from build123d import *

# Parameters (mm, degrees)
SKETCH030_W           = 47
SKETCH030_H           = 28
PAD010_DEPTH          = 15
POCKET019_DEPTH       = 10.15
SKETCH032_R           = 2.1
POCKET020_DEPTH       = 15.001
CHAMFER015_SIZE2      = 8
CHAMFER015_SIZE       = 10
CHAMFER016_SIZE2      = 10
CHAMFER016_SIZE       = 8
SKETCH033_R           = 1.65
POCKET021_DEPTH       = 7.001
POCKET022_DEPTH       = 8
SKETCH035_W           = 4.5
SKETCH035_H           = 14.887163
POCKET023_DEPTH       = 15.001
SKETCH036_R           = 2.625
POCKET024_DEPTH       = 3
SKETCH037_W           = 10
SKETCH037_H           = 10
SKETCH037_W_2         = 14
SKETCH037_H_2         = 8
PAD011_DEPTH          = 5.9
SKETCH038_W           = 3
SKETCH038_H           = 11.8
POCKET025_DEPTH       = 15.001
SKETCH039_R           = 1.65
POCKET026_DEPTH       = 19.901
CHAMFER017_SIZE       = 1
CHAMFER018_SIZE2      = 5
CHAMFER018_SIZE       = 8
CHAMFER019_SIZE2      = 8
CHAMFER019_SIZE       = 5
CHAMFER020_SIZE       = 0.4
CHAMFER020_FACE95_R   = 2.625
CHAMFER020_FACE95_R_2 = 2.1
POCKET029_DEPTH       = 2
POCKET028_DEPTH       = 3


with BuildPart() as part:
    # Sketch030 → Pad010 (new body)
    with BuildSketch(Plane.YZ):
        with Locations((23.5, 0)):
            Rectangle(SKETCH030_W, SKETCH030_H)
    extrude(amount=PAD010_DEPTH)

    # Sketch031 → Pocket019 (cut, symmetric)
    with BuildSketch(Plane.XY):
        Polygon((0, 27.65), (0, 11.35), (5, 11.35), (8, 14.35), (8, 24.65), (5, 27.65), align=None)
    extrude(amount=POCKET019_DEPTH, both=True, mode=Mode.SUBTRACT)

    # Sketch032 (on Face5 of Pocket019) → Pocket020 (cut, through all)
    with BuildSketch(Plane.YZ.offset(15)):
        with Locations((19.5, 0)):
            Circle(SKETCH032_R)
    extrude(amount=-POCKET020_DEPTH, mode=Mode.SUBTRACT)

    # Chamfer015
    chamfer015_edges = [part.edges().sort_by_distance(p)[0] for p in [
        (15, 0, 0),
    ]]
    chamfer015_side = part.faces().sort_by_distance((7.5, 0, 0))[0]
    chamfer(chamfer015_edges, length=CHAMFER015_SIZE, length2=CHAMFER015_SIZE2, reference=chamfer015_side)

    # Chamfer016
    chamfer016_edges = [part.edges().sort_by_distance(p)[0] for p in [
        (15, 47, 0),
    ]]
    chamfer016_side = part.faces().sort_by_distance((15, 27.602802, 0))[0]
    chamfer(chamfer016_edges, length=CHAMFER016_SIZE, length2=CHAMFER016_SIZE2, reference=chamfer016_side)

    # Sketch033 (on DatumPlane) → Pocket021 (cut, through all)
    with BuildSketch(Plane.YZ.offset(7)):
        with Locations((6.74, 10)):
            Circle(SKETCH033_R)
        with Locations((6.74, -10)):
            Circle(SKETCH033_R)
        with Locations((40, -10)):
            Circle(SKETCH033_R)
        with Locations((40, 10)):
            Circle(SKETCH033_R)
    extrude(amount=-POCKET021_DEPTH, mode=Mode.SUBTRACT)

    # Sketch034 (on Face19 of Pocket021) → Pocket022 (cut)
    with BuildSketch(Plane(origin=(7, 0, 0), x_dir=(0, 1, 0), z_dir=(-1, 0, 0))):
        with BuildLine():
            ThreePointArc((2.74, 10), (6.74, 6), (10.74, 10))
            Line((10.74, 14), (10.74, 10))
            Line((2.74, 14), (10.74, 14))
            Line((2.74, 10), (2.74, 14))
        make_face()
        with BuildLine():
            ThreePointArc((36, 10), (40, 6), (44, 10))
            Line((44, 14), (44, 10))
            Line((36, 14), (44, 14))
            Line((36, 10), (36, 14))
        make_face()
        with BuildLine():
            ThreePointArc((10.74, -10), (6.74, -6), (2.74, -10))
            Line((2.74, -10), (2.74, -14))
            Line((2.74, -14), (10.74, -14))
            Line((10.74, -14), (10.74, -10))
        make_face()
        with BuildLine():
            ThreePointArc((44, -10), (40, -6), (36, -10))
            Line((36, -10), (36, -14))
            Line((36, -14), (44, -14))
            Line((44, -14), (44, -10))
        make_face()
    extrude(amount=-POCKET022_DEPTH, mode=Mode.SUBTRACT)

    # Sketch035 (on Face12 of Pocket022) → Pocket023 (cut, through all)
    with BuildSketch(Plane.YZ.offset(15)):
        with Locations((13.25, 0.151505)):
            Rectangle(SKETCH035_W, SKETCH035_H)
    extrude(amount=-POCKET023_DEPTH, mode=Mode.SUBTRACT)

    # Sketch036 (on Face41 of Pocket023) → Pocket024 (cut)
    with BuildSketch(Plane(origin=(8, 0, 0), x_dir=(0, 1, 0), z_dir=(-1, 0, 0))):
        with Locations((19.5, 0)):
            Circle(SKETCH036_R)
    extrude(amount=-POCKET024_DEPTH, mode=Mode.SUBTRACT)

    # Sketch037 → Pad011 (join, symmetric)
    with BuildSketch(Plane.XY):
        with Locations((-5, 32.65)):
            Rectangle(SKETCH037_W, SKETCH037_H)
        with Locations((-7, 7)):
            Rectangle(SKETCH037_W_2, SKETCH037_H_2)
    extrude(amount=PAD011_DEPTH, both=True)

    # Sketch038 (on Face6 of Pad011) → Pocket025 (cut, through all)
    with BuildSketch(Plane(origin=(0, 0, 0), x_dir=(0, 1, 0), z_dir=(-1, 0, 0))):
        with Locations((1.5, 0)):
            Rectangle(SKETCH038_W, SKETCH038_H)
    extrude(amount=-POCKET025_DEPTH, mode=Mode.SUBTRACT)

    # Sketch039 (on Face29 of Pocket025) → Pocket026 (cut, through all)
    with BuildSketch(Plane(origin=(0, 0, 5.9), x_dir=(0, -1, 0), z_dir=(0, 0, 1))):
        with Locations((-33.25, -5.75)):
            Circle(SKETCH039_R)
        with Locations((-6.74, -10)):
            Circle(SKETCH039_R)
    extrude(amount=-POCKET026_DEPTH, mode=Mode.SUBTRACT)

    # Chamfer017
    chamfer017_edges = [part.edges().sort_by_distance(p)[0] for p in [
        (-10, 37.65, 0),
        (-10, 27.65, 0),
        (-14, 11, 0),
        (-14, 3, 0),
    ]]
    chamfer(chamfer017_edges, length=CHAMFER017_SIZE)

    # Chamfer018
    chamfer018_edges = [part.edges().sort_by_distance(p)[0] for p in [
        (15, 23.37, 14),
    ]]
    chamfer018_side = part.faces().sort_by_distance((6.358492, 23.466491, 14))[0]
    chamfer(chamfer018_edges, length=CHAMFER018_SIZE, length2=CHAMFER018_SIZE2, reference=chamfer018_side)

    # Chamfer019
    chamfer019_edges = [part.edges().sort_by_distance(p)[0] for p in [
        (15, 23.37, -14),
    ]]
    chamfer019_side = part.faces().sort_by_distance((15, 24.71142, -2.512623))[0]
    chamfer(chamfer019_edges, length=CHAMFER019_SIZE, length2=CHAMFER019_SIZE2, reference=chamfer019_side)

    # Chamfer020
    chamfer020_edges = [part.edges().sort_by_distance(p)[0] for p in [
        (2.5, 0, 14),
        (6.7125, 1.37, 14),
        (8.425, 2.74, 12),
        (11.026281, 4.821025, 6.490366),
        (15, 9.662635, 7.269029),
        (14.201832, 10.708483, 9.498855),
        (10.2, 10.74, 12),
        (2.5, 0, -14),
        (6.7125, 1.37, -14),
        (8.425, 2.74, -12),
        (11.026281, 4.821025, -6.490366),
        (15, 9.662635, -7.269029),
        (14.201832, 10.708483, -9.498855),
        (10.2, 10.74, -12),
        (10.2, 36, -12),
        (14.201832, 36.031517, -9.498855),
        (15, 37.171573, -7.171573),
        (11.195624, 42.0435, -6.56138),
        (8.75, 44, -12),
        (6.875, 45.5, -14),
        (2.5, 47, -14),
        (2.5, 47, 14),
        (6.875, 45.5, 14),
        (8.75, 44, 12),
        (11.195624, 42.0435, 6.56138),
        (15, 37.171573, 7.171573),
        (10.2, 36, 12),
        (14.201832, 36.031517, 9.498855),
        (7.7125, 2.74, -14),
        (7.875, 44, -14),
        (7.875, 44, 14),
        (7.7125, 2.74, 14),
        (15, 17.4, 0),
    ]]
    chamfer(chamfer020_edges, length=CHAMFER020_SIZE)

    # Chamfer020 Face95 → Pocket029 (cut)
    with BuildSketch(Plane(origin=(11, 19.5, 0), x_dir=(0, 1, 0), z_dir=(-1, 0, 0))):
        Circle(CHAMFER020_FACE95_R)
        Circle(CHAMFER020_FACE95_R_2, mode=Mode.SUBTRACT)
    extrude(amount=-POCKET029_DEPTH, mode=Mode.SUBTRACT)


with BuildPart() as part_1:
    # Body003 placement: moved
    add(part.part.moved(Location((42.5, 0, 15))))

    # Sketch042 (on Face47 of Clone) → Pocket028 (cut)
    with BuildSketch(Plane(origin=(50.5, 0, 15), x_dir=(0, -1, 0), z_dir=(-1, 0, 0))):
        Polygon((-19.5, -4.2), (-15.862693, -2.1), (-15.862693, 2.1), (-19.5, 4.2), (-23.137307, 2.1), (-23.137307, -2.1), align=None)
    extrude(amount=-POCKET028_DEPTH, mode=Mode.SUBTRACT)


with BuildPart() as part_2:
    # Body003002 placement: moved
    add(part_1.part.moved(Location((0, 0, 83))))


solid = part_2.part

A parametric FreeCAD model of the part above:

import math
import FreeCAD as App
import Part
import Sketcher

V = App.Vector
Q = App.Units.Quantity


def edges_at(feature, points):
    """Names of the edges that pass closest to the given points."""
    edges = feature.Shape.Edges
    near = lambda p: min(range(len(edges)), key=lambda i: edges[i].distToShape(Part.Vertex(*p))[0])
    return sorted({f"Edge{near(p) + 1}" for p in points})


def add_polygon(sketch, points):
    """Adds a closed chain of lines whose ends are joined by coincident constraints."""
    first, n = sketch.GeometryCount, len(points)
    for a, b in zip(points, points[1:] + points[:1]):
        sketch.addGeometry(Part.LineSegment(App.Vector(*a, 0), App.Vector(*b, 0)), False)
    for i in range(n):
        sketch.addConstraint(Sketcher.Constraint("Coincident", first + i, 2, first + (i + 1) % n, 1))

doc = App.newDocument("Part")
body = doc.addObject("PartDesign::Body", "Body")

# Sketch on YZ plane
sketch1 = doc.addObject("Sketcher::SketchObject", "Sketch")
body.addObject(sketch1)
sketch1.AttachmentSupport = (doc.YZ_Plane, [""])
sketch1.MapMode = "FlatFace"
add_polygon(sketch1, [(0, 14), (0, -14), (47, -14), (47, 14)])  # lines 0-3
sketch1.addConstraint([
    Sketcher.Constraint("Vertical", 0),
    Sketcher.Constraint("Horizontal", 1),
    Sketcher.Constraint("Vertical", 2),
    Sketcher.Constraint("Horizontal", 3),
    Sketcher.Constraint("Symmetric", 0, 2, 3, 2, -1, 1),
    Sketcher.Constraint("DistanceX", 1, 1, 1, 2, 47.0),
    Sketcher.Constraint("DistanceY", 0, 2, 0, 1, 28.0),
])
pad1 = doc.addObject("PartDesign::Pad", "Pad")
body.addObject(pad1)
pad1.Profile = sketch1
pad1.Length = 15

# Sketch on XY plane
sketch2 = doc.addObject("Sketcher::SketchObject", "Sketch001")
body.addObject(sketch2)
sketch2.AttachmentSupport = (doc.XY_Plane, [""])
sketch2.MapMode = "FlatFace"
add_polygon(sketch2, [(0, 27.65), (0, 11.35), (5, 11.35), (8, 14.35), (8, 24.65), (5, 27.65)])  # lines 0-5
sketch2.addConstraint([
    Sketcher.Constraint("Vertical", 0),
    Sketcher.Constraint("Horizontal", 1),
    Sketcher.Constraint("Vertical", 3),
    Sketcher.Constraint("Horizontal", 5),
    Sketcher.Constraint("PointOnObject", 0, 2, -2),
    Sketcher.Constraint("Perpendicular", 2, 4),
    Sketcher.Constraint("Vertical", 1, 2, 4, 2),
    Sketcher.Constraint("Equal", 2, 4),
    Sketcher.Constraint("DistanceX", 1, 1, 1, 2, 5.0),
    Sketcher.Constraint("DistanceY", 0, 2, 0, 1, 16.3),
    Sketcher.Constraint("DistanceY", 3, 1, 3, 2, 10.3),
    Sketcher.Constraint("DistanceY", -1, 1, 0, 2, 11.35),
])
pocket1 = doc.addObject("PartDesign::Pocket", "Pocket")
body.addObject(pocket1)
pocket1.Profile = sketch2
pocket1.Length = 20.3
pocket1.Midplane = True

# Sketch on YZ plane
sketch3 = doc.addObject("Sketcher::SketchObject", "Sketch002")
body.addObject(sketch3)
sketch3.AttachmentSupport = (doc.YZ_Plane, [""])
sketch3.MapMode = "FlatFace"
sketch3.AttachmentOffset = App.Placement(V(0, 0, 15), App.Rotation())
sketch3.addGeometry(Part.Circle(V(19.5, 0, 0), V(0, 0, 1), 2.1), False)
sketch3.addConstraint([
    Sketcher.Constraint("PointOnObject", 0, 3, -1),
    Sketcher.Constraint("Diameter", 0, 4.2),
    Sketcher.Constraint("DistanceX", -1, 1, 0, 3, 19.5),
])
pocket2 = doc.addObject("PartDesign::Pocket", "Pocket001")
body.addObject(pocket2)
pocket2.Profile = sketch3
pocket2.Type = "ThroughAll"
doc.recompute()

chamfer = doc.addObject("PartDesign::Chamfer", "Chamfer")
body.addObject(chamfer)
chamfer.Base = (pocket2, edges_at(pocket2, [(15, 0, 0)]))
chamfer.ChamferType = "Two distances"
chamfer.Size = 10
chamfer.Size2 = 8
doc.recompute()

chamfer2 = doc.addObject("PartDesign::Chamfer", "Chamfer001")
body.addObject(chamfer2)
chamfer2.Base = (chamfer, edges_at(chamfer, [(15, 47, 0)]))
chamfer2.ChamferType = "Two distances"
chamfer2.Size = 8
chamfer2.Size2 = 10

# Sketch on YZ plane
sketch4 = doc.addObject("Sketcher::SketchObject", "Sketch003")
body.addObject(sketch4)
sketch4.AttachmentSupport = (doc.YZ_Plane, [""])
sketch4.MapMode = "FlatFace"
sketch4.AttachmentOffset = App.Placement(V(0, 0, 7), App.Rotation())
sketch4.addGeometry([
    Part.Circle(V(6.74, 10, 0), V(0, 0, 1), 1.65),
    Part.Circle(V(6.74, -10, 0), V(0, 0, 1), 1.65),
    Part.Circle(V(40, -10, 0), V(0, 0, 1), 1.65),
    Part.Circle(V(40, 10, 0), V(0, 0, 1), 1.65),
], False)
sketch4.addConstraint([
    Sketcher.Constraint("Equal", 0, 1),
    Sketcher.Constraint("Equal", 1, 2),
    Sketcher.Constraint("Equal", 2, 3),
    Sketcher.Constraint("Symmetric", 0, 3, 1, 3, -1),
    Sketcher.Constraint("Symmetric", 2, 3, 3, 3, -1),
    Sketcher.Constraint("Horizontal", 1, 3, 2, 3),
    Sketcher.Constraint("Diameter", 0, 3.3),
    Sketcher.Constraint("DistanceY", -1, 1, 0, 3, 10.0),
    Sketcher.Constraint("DistanceX", -1, 1, 2, 3, 40.0),
    Sketcher.Constraint("DistanceX", -1, 1, 0, 3, 6.74),
])
pocket3 = doc.addObject("PartDesign::Pocket", "Pocket002")
body.addObject(pocket3)
pocket3.Profile = sketch4
pocket3.Type = "ThroughAll"

# Sketch on YZ plane
sketch5 = doc.addObject("Sketcher::SketchObject", "Sketch004")
body.addObject(sketch5)
sketch5.AttachmentSupport = (doc.YZ_Plane, [""])
sketch5.MapMode = "FlatFace"
sketch5.AttachmentOffset = App.Placement(V(0, 0, 7), App.Rotation())
sketch5.addGeometry([
    Part.ArcOfCircle(Part.Circle(V(6.74, -10, 0), V(0, 0, 1), 4), math.radians(0), math.radians(180)),  # 0
    Part.LineSegment(V(10.74, -10, 0), V(10.74, -14, 0)),  # 1
    Part.LineSegment(V(10.74, -14, 0), V(2.74, -14, 0)),  # 2
    Part.LineSegment(V(2.74, -14, 0), V(2.74, -10, 0)),  # 3
    Part.ArcOfCircle(Part.Circle(V(40, -10, 0), V(0, 0, 1), 4), math.radians(0), math.radians(180)),  # 4
    Part.LineSegment(V(44, -10, 0), V(44, -14, 0)),  # 5
    Part.LineSegment(V(44, -14, 0), V(36, -14, 0)),  # 6
    Part.LineSegment(V(36, -14, 0), V(36, -10, 0)),  # 7
    Part.ArcOfCircle(Part.Circle(V(6.74, 10, 0), V(0, 0, 1), 4), math.radians(180), math.radians(360)),  # 8
    Part.LineSegment(V(2.74, 10, 0), V(2.74, 14, 0)),  # 9
    Part.LineSegment(V(2.74, 14, 0), V(10.74, 14, 0)),  # 10
    Part.LineSegment(V(10.74, 14, 0), V(10.74, 10, 0)),  # 11
    Part.ArcOfCircle(Part.Circle(V(40, 10, 0), V(0, 0, 1), 4), math.radians(180), math.radians(360)),  # 12
    Part.LineSegment(V(36, 10, 0), V(36, 14, 0)),  # 13
    Part.LineSegment(V(36, 14, 0), V(44, 14, 0)),  # 14
    Part.LineSegment(V(44, 14, 0), V(44, 10, 0)),  # 15
], False)
sketch5.addConstraint([
    Sketcher.Constraint("Tangent", 0, 1, 1, 1),
    Sketcher.Constraint("Coincident", 1, 2, 2, 1),
    Sketcher.Constraint("Coincident", 2, 2, 3, 1),
    Sketcher.Constraint("Tangent", 3, 2, 0, 2),
    Sketcher.Constraint("Tangent", 4, 1, 5, 1),
    Sketcher.Constraint("Coincident", 5, 2, 6, 1),
    Sketcher.Constraint("Coincident", 6, 2, 7, 1),
    Sketcher.Constraint("Tangent", 7, 2, 4, 2),
    Sketcher.Constraint("Tangent", 8, 1, 9, 1),
    Sketcher.Constraint("Coincident", 9, 2, 10, 1),
    Sketcher.Constraint("Coincident", 10, 2, 11, 1),
    Sketcher.Constraint("Tangent", 11, 2, 8, 2),
    Sketcher.Constraint("Tangent", 12, 1, 13, 1),
    Sketcher.Constraint("Coincident", 13, 2, 14, 1),
    Sketcher.Constraint("Coincident", 14, 2, 15, 1),
    Sketcher.Constraint("Tangent", 15, 2, 12, 2),
    Sketcher.Constraint("Vertical", 1),
    Sketcher.Constraint("Horizontal", 2),
    Sketcher.Constraint("Vertical", 3),
    Sketcher.Constraint("Vertical", 5),
    Sketcher.Constraint("Horizontal", 6),
    Sketcher.Constraint("Vertical", 7),
    Sketcher.Constraint("Vertical", 9),
    Sketcher.Constraint("Horizontal", 10),
    Sketcher.Constraint("Vertical", 11),
    Sketcher.Constraint("Vertical", 13),
    Sketcher.Constraint("Horizontal", 14),
    Sketcher.Constraint("Vertical", 15),
    Sketcher.Constraint("Equal", 0, 4),
    Sketcher.Constraint("Equal", 4, 8),
    Sketcher.Constraint("Equal", 8, 12),
    Sketcher.Constraint("Symmetric", 0, 3, 8, 3, -1),
    Sketcher.Constraint("Symmetric", 4, 3, 12, 3, -1),
    Sketcher.Constraint("Horizontal", 0, 3, 4, 3),
    Sketcher.Constraint("Horizontal", 2, 2, 5, 2),
    Sketcher.Constraint("Horizontal", 10, 2, 13, 2),
    Sketcher.Constraint("Equal", 7, 9),
    Sketcher.Constraint("Radius", 0, 4.0),
    Sketcher.Constraint("DistanceY", 1, 2, 1, 1, 4.0),
    Sketcher.Constraint("DistanceY", 0, 3, -1, 1, 10.0),
    Sketcher.Constraint("DistanceX", -1, 1, 4, 3, 40.0),
    Sketcher.Constraint("DistanceX", -1, 1, 0, 3, 6.74),
])
pocket4 = doc.addObject("PartDesign::Pocket", "Pocket003")
body.addObject(pocket4)
pocket4.Profile = sketch5
pocket4.Length = 8
pocket4.Reversed = True

# Sketch on YZ plane
sketch6 = doc.addObject("Sketcher::SketchObject", "Sketch005")
body.addObject(sketch6)
sketch6.AttachmentSupport = (doc.YZ_Plane, [""])
sketch6.MapMode = "FlatFace"
sketch6.AttachmentOffset = App.Placement(V(0, 0, 15), App.Rotation())
add_polygon(sketch6, [(11, 7.595086), (11, -7.292077), (15.5, -7.292077), (15.5, 7.595086)])  # lines 0-3
sketch6.addConstraint([
    Sketcher.Constraint("Vertical", 0),
    Sketcher.Constraint("Horizontal", 1),
    Sketcher.Constraint("Vertical", 2),
    Sketcher.Constraint("Horizontal", 3),
    Sketcher.Constraint("DistanceX", 1, 1, 1, 2, 4.5),
    Sketcher.Constraint("DistanceX", -1, 1, 0, 2, 11.0),
    Sketcher.Constraint("DistanceY", 0, 2, 0, 1, 14.887163),
    Sketcher.Constraint("DistanceY", 0, 2, -1, 1, 7.292077),
])
pocket5 = doc.addObject("PartDesign::Pocket", "Pocket004")
body.addObject(pocket5)
pocket5.Profile = sketch6
pocket5.Type = "ThroughAll"

# Sketch on YZ plane
sketch7 = doc.addObject("Sketcher::SketchObject", "Sketch006")
body.addObject(sketch7)
sketch7.AttachmentSupport = (doc.YZ_Plane, [""])
sketch7.MapMode = "FlatFace"
sketch7.AttachmentOffset = App.Placement(V(0, 0, 8), App.Rotation())
sketch7.addGeometry(Part.Circle(V(19.5, 0, 0), V(0, 0, 1), 2.625), False)
sketch7.addConstraint([
    Sketcher.Constraint("PointOnObject", 0, 3, -1),
    Sketcher.Constraint("Diameter", 0, 5.25),
    Sketcher.Constraint("DistanceX", -1, 1, 0, 3, 19.5),
])
pocket6 = doc.addObject("PartDesign::Pocket", "Pocket005")
body.addObject(pocket6)
pocket6.Profile = sketch7
pocket6.Length = 3
pocket6.Reversed = True

# Sketch on XY plane
sketch8 = doc.addObject("Sketcher::SketchObject", "Sketch007")
body.addObject(sketch8)
sketch8.AttachmentSupport = (doc.XY_Plane, [""])
sketch8.MapMode = "FlatFace"
add_polygon(sketch8, [(-10, 37.65), (-10, 27.65), (0, 27.65), (0, 37.65)])  # lines 0-3
add_polygon(sketch8, [(-14, 11), (-14, 3), (0, 3), (0, 11)])  # lines 4-7
sketch8.addConstraint([
    Sketcher.Constraint("Vertical", 0),
    Sketcher.Constraint("Horizontal", 1),
    Sketcher.Constraint("Vertical", 2),
    Sketcher.Constraint("Horizontal", 3),
    Sketcher.Constraint("Vertical", 4),
    Sketcher.Constraint("Horizontal", 5),
    Sketcher.Constraint("Vertical", 6),
    Sketcher.Constraint("Horizontal", 7),
    Sketcher.Constraint("PointOnObject", 1, 2, -2),
    Sketcher.Constraint("PointOnObject", 5, 2, -2),
    Sketcher.Constraint("Equal", 3, 0),
    Sketcher.Constraint("DistanceX", 1, 1, 1, 2, 10.0),
    Sketcher.Constraint("DistanceX", 5, 1, 5, 2, 14.0),
    Sketcher.Constraint("DistanceY", 4, 2, 4, 1, 8.0),
    Sketcher.Constraint("DistanceY", -1, 1, 4, 2, 3.0),
    Sketcher.Constraint("DistanceY", -1, 1, 0, 2, 27.65),
])
pad2 = doc.addObject("PartDesign::Pad", "Pad001")
body.addObject(pad2)
pad2.Profile = sketch8
pad2.Length = 11.8
pad2.Midplane = True

# Sketch on YZ plane
sketch9 = doc.addObject("Sketcher::SketchObject", "Sketch008")
body.addObject(sketch9)
sketch9.AttachmentSupport = (doc.YZ_Plane, [""])
sketch9.MapMode = "FlatFace"
add_polygon(sketch9, [(0, -5.9), (0, 5.9), (3, 5.9), (3, -5.9)])  # lines 0-3
sketch9.addConstraint([
    Sketcher.Constraint("Vertical", 0),
    Sketcher.Constraint("Horizontal", 1),
    Sketcher.Constraint("Vertical", 2),
    Sketcher.Constraint("Horizontal", 3),
    Sketcher.Constraint("Symmetric", 0, 2, 3, 2, -1, 1),
    Sketcher.Constraint("DistanceX", 1, 1, 1, 2, 3.0),
    Sketcher.Constraint("DistanceY", 0, 1, 0, 2, 11.8),
])
pocket7 = doc.addObject("PartDesign::Pocket", "Pocket006")
body.addObject(pocket7)
pocket7.Profile = sketch9
pocket7.Type = "ThroughAll"
pocket7.Reversed = True

# Sketch on XY plane
sketch10 = doc.addObject("Sketcher::SketchObject", "Sketch009")
body.addObject(sketch10)
sketch10.AttachmentSupport = (doc.XY_Plane, [""])
sketch10.MapMode = "FlatFace"
sketch10.AttachmentOffset = App.Placement(V(0, 0, 5.9), App.Rotation())
sketch10.addGeometry([
    Part.Circle(V(-5.75, 33.25, 0), V(0, 0, 1), 1.65),
    Part.Circle(V(-10, 6.74, 0), V(0, 0, 1), 1.65),
], False)
sketch10.addConstraint([
    Sketcher.Constraint("Equal", 0, 1),
    Sketcher.Constraint("Diameter", 0, 3.3),
    Sketcher.Constraint("DistanceX", 1, 3, -1, 1, 10.0),
    Sketcher.Constraint("DistanceX", 0, 3, -1, 1, 5.75),
    Sketcher.Constraint("DistanceY", -1, 1, 0, 3, 33.25),
    Sketcher.Constraint("DistanceY", -1, 1, 1, 3, 6.74),
])
pocket8 = doc.addObject("PartDesign::Pocket", "Pocket007")
body.addObject(pocket8)
pocket8.Profile = sketch10
pocket8.Type = "ThroughAll"
doc.recompute()

chamfer3 = doc.addObject("PartDesign::Chamfer", "Chamfer002")
body.addObject(chamfer3)
chamfer3.Base = (pocket8, edges_at(pocket8, [
    (-10, 37.65, 0),
    (-10, 27.65, 0),
    (-14, 11, 0),
    (-14, 3, 0),
]))
chamfer3.Size = 1
doc.recompute()

chamfer4 = doc.addObject("PartDesign::Chamfer", "Chamfer003")
body.addObject(chamfer4)
chamfer4.Base = (chamfer3, edges_at(chamfer3, [(15, 23.37, 14)]))
chamfer4.ChamferType = "Two distances"
chamfer4.Size = 8
chamfer4.Size2 = 5
chamfer4.FlipDirection = True
doc.recompute()

chamfer5 = doc.addObject("PartDesign::Chamfer", "Chamfer004")
body.addObject(chamfer5)
chamfer5.Base = (chamfer4, edges_at(chamfer4, [(15, 23.37, -14)]))
chamfer5.ChamferType = "Two distances"
chamfer5.Size = 5
chamfer5.Size2 = 8
doc.recompute()

chamfer6 = doc.addObject("PartDesign::Chamfer", "Chamfer005")
body.addObject(chamfer6)
chamfer6.Base = (chamfer5, edges_at(chamfer5, [
    (2.5, 0, 14),
    (6.713, 1.37, 14),
    (8.425, 2.74, 12),
    (11.026, 4.821, 6.49),
    (15, 9.663, 7.269),
    (14.202, 10.708, 9.499),
    (10.2, 10.74, 12),
    (2.5, 0, -14),
    (6.713, 1.37, -14),
    (8.425, 2.74, -12),
    (11.026, 4.821, -6.49),
    (15, 9.663, -7.269),
    (14.202, 10.708, -9.499),
    (10.2, 10.74, -12),
    (10.2, 36, -12),
    (14.202, 36.032, -9.499),
    (15, 37.172, -7.172),
    (11.196, 42.044, -6.561),
    (8.75, 44, -12),
    (6.875, 45.5, -14),
    (2.5, 47, -14),
    (2.5, 47, 14),
    (6.875, 45.5, 14),
    (8.75, 44, 12),
    (11.196, 42.044, 6.561),
    (15, 37.172, 7.172),
    (10.2, 36, 12),
    (14.202, 36.032, 9.499),
    (7.713, 2.74, -14),
    (7.875, 44, -14),
    (7.875, 44, 14),
    (7.713, 2.74, 14),
    (15, 17.4, 0),
]))
chamfer6.Size = 0.4

# Sketch on YZ plane
sketch11 = doc.addObject("Sketcher::SketchObject", "Sketch010")
body.addObject(sketch11)
sketch11.AttachmentSupport = (doc.YZ_Plane, [""])
sketch11.MapMode = "FlatFace"
sketch11.AttachmentOffset = App.Placement(V(0, 0, 11), App.Rotation())
sketch11.addGeometry([
    Part.Circle(V(19.5, 0, 0), V(0, 0, 1), 2.625),
    Part.Circle(V(19.5, 0, 0), V(0, 0, 1), 2.1),
], False)
sketch11.addConstraint([
    Sketcher.Constraint("Coincident", 1, 3, 0, 3),
    Sketcher.Constraint("PointOnObject", 0, 3, -1),
    Sketcher.Constraint("Diameter", 1, 4.2),
    Sketcher.Constraint("Diameter", 0, 5.25),
    Sketcher.Constraint("DistanceX", -1, 1, 0, 3, 19.5),
])
pocket9 = doc.addObject("PartDesign::Pocket", "Pocket008")
body.addObject(pocket9)
pocket9.Profile = sketch11
pocket9.Length = 2
pocket9.Reversed = True
body2 = doc.addObject("PartDesign::Body", "Body001")
doc.recompute()

body.Placement = App.Placement(V(42.5, 0, 15), App.Rotation(V(0, 0, 1), 0))
boolean = doc.addObject("PartDesign::Boolean", "Boolean")
body2.addObject(boolean)
boolean.Type = "Fuse"
boolean.addObjects([body])

# Sketch on YZ plane
sketch12 = doc.addObject("Sketcher::SketchObject", "Sketch011")
body2.addObject(sketch12)
sketch12.AttachmentSupport = (doc.getObject("YZ_Plane001"), [""])
sketch12.MapMode = "FlatFace"
sketch12.AttachmentOffset = App.Placement(V(0, 0, 50.5), App.Rotation())
add_polygon(sketch12, [(19.5, 10.8), (15.862693, 12.9), (15.862693, 17.1), (19.5, 19.2), (23.137307, 17.1), (23.137307, 12.9)])  # lines 0-5
sketch12.addConstraint([
    Sketcher.Constraint("Vertical", 1),
    Sketcher.Constraint("Vertical", 4),
    Sketcher.Constraint("Parallel", 0, 3),
    Sketcher.Constraint("Parallel", 2, 5),
    Sketcher.Constraint("Horizontal", 1, 2, 3, 2),
    Sketcher.Constraint("Horizontal", 0, 2, 4, 2),
    Sketcher.Constraint("Vertical", 2, 2, 5, 2),
    Sketcher.Constraint("Angle", 0, Q("150.000002 deg")),
    Sketcher.Constraint("DistanceY", 1, 1, 1, 2, 4.2),
    Sketcher.Constraint("Distance", 0, 4.2),
    Sketcher.Constraint("DistanceY", -1, 1, 0, 2, 12.9),
    Sketcher.Constraint("DistanceX", -1, 1, 2, 2, 19.5),
])
pocket10 = doc.addObject("PartDesign::Pocket", "Pocket009")
body2.addObject(pocket10)
pocket10.Profile = sketch12
pocket10.Length = 3
pocket10.Reversed = True
body3 = doc.addObject("PartDesign::Body", "Body002")
doc.recompute()

body2.Placement = App.Placement(V(0, 0, 83), App.Rotation(V(0, 0, 1), 0))
boolean2 = doc.addObject("PartDesign::Boolean", "Boolean001")
body3.addObject(boolean2)
boolean2.Type = "Fuse"
boolean2.addObjects([body2])

doc.recompute()
